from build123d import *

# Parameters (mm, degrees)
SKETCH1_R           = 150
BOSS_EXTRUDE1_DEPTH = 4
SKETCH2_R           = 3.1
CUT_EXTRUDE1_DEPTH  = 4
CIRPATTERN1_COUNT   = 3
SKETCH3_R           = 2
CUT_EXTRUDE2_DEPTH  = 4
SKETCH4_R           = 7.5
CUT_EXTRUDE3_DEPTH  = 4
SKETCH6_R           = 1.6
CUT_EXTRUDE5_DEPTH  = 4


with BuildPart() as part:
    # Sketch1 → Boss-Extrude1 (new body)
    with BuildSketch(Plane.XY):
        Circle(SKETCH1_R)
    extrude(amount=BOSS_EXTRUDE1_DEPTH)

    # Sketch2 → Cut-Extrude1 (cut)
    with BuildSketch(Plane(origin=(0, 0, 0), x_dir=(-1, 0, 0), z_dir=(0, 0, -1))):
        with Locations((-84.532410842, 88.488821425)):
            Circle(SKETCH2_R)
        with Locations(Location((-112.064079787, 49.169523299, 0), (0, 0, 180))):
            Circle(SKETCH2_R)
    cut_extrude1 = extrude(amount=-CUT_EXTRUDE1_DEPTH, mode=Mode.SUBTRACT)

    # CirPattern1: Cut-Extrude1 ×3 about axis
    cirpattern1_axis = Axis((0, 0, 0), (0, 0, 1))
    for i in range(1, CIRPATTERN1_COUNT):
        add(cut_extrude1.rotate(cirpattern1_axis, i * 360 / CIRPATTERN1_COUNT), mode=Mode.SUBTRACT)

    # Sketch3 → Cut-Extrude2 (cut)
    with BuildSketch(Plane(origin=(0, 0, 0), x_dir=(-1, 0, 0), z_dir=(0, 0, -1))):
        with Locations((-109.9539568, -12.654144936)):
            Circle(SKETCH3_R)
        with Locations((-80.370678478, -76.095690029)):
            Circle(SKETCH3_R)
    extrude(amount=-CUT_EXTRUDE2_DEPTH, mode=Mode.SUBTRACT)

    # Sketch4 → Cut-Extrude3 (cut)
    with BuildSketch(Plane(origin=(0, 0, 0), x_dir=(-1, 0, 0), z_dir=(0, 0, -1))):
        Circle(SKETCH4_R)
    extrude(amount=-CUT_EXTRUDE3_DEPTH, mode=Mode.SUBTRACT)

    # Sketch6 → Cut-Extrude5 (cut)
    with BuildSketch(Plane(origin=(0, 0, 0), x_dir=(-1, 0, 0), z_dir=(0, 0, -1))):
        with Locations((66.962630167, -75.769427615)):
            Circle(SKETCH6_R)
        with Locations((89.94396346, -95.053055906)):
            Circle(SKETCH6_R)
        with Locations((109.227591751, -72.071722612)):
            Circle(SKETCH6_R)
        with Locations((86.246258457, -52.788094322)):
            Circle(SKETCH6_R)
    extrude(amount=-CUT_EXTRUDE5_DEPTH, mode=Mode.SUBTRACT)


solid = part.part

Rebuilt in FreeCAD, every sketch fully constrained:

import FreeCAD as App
import Part
import Sketcher
from FreeCAD import Vector

doc = App.newDocument("Part")
body = doc.addObject("PartDesign::Body", "Body")

sketch1 = body.newObject("Sketcher::SketchObject", "Sketch")
sketch1.AttachmentSupport = (doc.getObject("XY_Plane"), [""])
sketch1.MapMode = "FlatFace"
sketch1.addGeometry(Part.Circle(Vector(0, 0, 0), Vector(0, 0, 1), 150), False)
sketch1.addConstraint([
    Sketcher.Constraint("Coincident", 0, 3, -1, 1),
    Sketcher.Constraint("Diameter", 0, 300.0),
])
pad1 = body.newObject("PartDesign::Pad", "Pad")
pad1.Profile = sketch1
pad1.Length = 4

sketch2 = body.newObject("Sketcher::SketchObject", "Sketch001")
sketch2.AttachmentSupport = (doc.getObject("XY_Plane"), [""])
sketch2.MapMode = "FlatFace"
sketch2.addGeometry([
    Part.Circle(Vector(84.5, 88.5, 0), Vector(0, 0, 1), 3.1),
    Part.Circle(Vector(112.1, 49.2, 0), Vector(0, 0, 1), 3.1),
], False)
sketch2.addConstraint([
    Sketcher.Constraint("Equal", 0, 1),
    Sketcher.Constraint("Diameter", 0, 6.2),
    Sketcher.Constraint("DistanceY", 1, 3, 0, 3, 39.319298),
    Sketcher.Constraint("DistanceX", -1, 1, 0, 3, 84.532411),
    Sketcher.Constraint("DistanceY", -1, 1, 0, 3, 88.488821),
    Sketcher.Constraint("DistanceX", -1, 1, 1, 3, 112.06408),
])
pocket1 = body.newObject("PartDesign::Pocket", "Pocket")
pocket1.Profile = sketch2
pocket1.Length = 4
pocket1.Reversed = True
doc.recompute()

polarpattern = body.newObject("PartDesign::PolarPattern", "PolarPattern")
polarpattern.Originals = [pocket1]
polarpattern.Axis = (doc.getObject("Z_Axis"), [""])
polarpattern.Angle = 360
polarpattern.Occurrences = 3
body.Tip = polarpattern

sketch3 = body.newObject("Sketcher::SketchObject", "Sketch002")
sketch3.AttachmentSupport = (doc.getObject("XY_Plane"), [""])
sketch3.MapMode = "FlatFace"
sketch3.addGeometry([
    Part.Circle(Vector(110, -12.7, 0), Vector(0, 0, 1), 2),
    Part.Circle(Vector(80.4, -76.1, 0), Vector(0, 0, 1), 2),
], False)
sketch3.addConstraint([
    Sketcher.Constraint("Equal", 0, 1),
    Sketcher.Constraint("Diameter", 0, 4.0),
    Sketcher.Constraint("DistanceX", -1, 1, 1, 3, 80.370678),
    Sketcher.Constraint("DistanceY", 1, 3, -1, 1, 76.09569),
    Sketcher.Constraint("DistanceX", 1, 3, 0, 3, 29.583278),
    Sketcher.Constraint("DistanceY", 0, 3, -1, 1, 12.654145),
])
pocket2 = body.newObject("PartDesign::Pocket", "Pocket001")
pocket2.Profile = sketch3
pocket2.Length = 4
pocket2.Reversed = True

sketch4 = body.newObject("Sketcher::SketchObject", "Sketch003")
sketch4.AttachmentSupport = (doc.getObject("XY_Plane"), [""])
sketch4.MapMode = "FlatFace"
sketch4.addGeometry(Part.Circle(Vector(0, 0, 0), Vector(0, 0, 1), 8), False)
sketch4.addConstraint([
    Sketcher.Constraint("Coincident", 0, 3, -1, 1),
    Sketcher.Constraint("Diameter", 0, 15.0),
])
pocket3 = body.newObject("PartDesign::Pocket", "Pocket002")
pocket3.Profile = sketch4
pocket3.Length = 4
pocket3.Reversed = True

sketch5 = body.newObject("Sketcher::SketchObject", "Sketch004")
sketch5.AttachmentSupport = (doc.getObject("XY_Plane"), [""])
sketch5.MapMode = "FlatFace"
sketch5.addGeometry([
    Part.Circle(Vector(-67, -75.8, 0), Vector(0, 0, 1), 1.6),
    Part.Circle(Vector(-89.9, -95.1, 0), Vector(0, 0, 1), 1.6),
    Part.Circle(Vector(-109.2, -72.1, 0), Vector(0, 0, 1), 1.6),
    Part.Circle(Vector(-86.2, -52.8, 0), Vector(0, 0, 1), 1.6),
], False)
sketch5.addConstraint([
    Sketcher.Constraint("Equal", 0, 1),
    Sketcher.Constraint("Equal", 1, 2),
    Sketcher.Constraint("Equal", 2, 3),
    Sketcher.Constraint("Diameter", 0, 3.2),
    Sketcher.Constraint("DistanceX", 0, 3, -1, 1, 66.96263),
    Sketcher.Constraint("DistanceX", 2, 3, -1, 1, 109.227592),
    Sketcher.Constraint("DistanceX", 3, 3, -1, 1, 86.246258),
    Sketcher.Constraint("DistanceY", 1, 3, 0, 3, 19.283628),
    Sketcher.Constraint("DistanceX", 2, 3, 1, 3, 19.283628),
    Sketcher.Constraint("DistanceY", 2, 3, 3, 3, 19.283628),
    Sketcher.Constraint("DistanceY", 1, 3, 3, 3, 42.264962),
    Sketcher.Constraint("DistanceY", 0, 3, -1, 1, 75.769428),
])
pocket4 = body.newObject("PartDesign::Pocket", "Pocket003")
pocket4.Profile = sketch5
pocket4.Length = 4
pocket4.Reversed = True

doc.recompute()
